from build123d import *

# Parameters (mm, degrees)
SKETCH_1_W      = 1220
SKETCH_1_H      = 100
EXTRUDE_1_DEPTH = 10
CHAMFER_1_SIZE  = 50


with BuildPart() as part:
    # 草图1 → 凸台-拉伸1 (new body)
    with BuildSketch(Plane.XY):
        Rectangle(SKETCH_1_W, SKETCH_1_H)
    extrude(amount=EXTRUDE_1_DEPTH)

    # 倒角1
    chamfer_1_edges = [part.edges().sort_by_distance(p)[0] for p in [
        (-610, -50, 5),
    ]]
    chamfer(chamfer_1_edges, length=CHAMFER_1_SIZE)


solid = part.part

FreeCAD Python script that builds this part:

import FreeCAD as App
import Part
import Sketcher
Q = App.Units.Quantity


def edges_at(feature, points):
    """Names of the edges that pass closest to the given points."""
    edges = feature.Shape.Edges
    near = lambda p: min(range(len(edges)), key=lambda i: edges[i].distToShape(Part.Vertex(*p))[0])
    return sorted({f"Edge{near(p) + 1}" for p in points})


def add_polygon(sketch, points):
    """Adds a closed chain of lines whose ends are joined by coincident constraints."""
    first, n = sketch.GeometryCount, len(points)
    for a, b in zip(points, points[1:] + points[:1]):
        sketch.addGeometry(Part.LineSegment(App.Vector(*a, 0), App.Vector(*b, 0)), False)
    for i in range(n):
        sketch.addConstraint(Sketcher.Constraint("Coincident", first + i, 2, first + (i + 1) % n, 1))

doc = App.newDocument("Part")
body = doc.addObject("PartDesign::Body", "Body")

# Sketch on XY plane
sketch1 = body.newObject("Sketcher::SketchObject", "Sketch")
sketch1.AttachmentSupport = (doc.getObject("XY_Plane"), [""])
sketch1.MapMode = "FlatFace"
add_polygon(sketch1, [(-610, 50), (-610, -50), (610, -50), (610, 50)])  # lines 0-3
sketch1.addConstraint([
    Sketcher.Constraint("Vertical", 0),
    Sketcher.Constraint("Horizontal", 1),
    Sketcher.Constraint("Vertical", 2),
    Sketcher.Constraint("Horizontal", 3),
    Sketcher.Constraint("Symmetric", 0, 2, 2, 2, -1, 1),
    Sketcher.Constraint("DistanceX", 1, 1, 1, 2, Q("1220 mm")),
    Sketcher.Constraint("DistanceY", 0, 2, 0, 1, Q("100 mm")),
])
pad1 = body.newObject("PartDesign::Pad", "Pad")
pad1.Profile = sketch1
pad1.Length = 10
doc.recompute()

chamfer = body.newObject("PartDesign::Chamfer", "Chamfer")
chamfer.Base = (pad1, edges_at(pad1, [(-610, -50, 5)]))
chamfer.Size = 50

doc.recompute()
